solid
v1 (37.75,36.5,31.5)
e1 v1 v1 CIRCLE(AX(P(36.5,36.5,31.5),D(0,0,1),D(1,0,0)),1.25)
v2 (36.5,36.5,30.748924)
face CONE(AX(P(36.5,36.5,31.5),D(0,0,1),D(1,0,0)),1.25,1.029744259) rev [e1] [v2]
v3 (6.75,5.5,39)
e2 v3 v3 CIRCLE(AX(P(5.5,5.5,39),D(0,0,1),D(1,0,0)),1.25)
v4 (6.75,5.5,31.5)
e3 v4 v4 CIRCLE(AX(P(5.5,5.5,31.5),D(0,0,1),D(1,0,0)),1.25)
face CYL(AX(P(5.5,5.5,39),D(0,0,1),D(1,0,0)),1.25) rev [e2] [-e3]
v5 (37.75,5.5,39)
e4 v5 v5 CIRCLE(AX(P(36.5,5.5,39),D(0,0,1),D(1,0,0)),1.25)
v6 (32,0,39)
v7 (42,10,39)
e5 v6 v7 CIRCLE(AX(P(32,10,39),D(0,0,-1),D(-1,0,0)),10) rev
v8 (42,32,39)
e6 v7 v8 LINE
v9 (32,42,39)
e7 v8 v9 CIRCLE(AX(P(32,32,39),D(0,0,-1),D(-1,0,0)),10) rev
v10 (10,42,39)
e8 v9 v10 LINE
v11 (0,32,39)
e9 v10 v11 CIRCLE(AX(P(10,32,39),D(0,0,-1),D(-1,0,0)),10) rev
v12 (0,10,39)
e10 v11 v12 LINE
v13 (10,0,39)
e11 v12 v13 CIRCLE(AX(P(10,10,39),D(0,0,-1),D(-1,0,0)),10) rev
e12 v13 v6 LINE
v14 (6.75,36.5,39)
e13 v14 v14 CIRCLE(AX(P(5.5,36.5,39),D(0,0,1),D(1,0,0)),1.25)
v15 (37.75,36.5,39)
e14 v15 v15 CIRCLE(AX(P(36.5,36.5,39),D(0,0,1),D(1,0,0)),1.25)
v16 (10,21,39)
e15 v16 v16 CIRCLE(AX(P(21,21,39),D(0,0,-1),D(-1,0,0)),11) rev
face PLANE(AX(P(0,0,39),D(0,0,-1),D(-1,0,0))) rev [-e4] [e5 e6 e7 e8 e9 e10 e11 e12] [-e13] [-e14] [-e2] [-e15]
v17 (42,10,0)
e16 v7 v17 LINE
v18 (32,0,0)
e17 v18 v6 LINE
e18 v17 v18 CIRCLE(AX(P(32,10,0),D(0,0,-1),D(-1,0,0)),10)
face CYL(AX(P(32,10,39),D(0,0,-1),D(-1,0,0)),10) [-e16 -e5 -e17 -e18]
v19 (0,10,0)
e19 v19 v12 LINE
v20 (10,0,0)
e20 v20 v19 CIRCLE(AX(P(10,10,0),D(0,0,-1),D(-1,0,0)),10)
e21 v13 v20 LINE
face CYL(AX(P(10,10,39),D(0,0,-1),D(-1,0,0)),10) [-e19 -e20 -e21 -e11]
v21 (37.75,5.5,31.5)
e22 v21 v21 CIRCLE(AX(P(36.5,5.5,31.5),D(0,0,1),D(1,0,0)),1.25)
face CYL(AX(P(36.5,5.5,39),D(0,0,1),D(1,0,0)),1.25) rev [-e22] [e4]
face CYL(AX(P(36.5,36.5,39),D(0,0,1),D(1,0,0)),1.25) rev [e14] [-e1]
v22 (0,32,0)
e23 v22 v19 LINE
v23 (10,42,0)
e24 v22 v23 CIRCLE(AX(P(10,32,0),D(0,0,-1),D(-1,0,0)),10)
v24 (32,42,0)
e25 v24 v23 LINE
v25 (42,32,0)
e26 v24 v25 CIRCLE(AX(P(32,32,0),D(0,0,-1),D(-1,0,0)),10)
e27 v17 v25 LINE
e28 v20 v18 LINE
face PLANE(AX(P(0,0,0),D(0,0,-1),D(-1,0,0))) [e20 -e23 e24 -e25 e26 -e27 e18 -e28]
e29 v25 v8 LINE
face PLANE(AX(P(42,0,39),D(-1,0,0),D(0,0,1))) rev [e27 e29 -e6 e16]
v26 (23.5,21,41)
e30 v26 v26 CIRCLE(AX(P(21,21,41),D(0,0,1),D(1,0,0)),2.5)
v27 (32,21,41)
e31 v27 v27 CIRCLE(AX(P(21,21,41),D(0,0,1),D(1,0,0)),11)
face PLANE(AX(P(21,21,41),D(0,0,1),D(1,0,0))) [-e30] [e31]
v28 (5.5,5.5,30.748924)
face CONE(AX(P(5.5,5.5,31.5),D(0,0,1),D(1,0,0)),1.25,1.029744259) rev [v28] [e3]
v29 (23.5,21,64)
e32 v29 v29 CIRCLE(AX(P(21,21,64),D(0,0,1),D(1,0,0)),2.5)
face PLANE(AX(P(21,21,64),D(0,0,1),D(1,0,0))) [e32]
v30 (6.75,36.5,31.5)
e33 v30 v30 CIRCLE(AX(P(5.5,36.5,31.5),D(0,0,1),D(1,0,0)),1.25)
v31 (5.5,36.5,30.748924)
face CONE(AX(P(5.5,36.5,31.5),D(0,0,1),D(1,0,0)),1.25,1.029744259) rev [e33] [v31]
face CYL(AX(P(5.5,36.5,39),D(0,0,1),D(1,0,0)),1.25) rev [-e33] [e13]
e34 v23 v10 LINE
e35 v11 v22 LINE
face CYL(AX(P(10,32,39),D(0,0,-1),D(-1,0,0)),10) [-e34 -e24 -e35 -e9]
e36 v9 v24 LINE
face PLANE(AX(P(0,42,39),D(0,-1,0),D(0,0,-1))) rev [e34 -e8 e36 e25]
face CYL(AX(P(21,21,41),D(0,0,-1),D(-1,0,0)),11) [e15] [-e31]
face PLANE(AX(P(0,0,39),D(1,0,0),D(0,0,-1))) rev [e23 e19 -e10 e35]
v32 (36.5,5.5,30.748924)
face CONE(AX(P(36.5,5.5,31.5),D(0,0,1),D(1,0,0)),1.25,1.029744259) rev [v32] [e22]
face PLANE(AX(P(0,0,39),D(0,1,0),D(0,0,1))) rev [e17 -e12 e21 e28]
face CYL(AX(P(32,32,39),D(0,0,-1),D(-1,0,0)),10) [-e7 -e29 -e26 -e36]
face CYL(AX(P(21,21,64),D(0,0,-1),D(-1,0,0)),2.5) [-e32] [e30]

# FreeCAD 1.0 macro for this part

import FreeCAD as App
import Part
import Sketcher

V = App.Vector


def edges_at(feature, points):
    """Names of the edges that pass closest to the given points."""
    edges = feature.Shape.Edges
    near = lambda p: min(range(len(edges)), key=lambda i: edges[i].distToShape(Part.Vertex(*p))[0])
    return sorted({f"Edge{near(p) + 1}" for p in points})


def add_polygon(sketch, points):
    """Adds a closed chain of lines whose ends are joined by coincident constraints."""
    first, n = sketch.GeometryCount, len(points)
    for a, b in zip(points, points[1:] + points[:1]):
        sketch.addGeometry(Part.LineSegment(App.Vector(*a, 0), App.Vector(*b, 0)), False)
    for i in range(n):
        sketch.addConstraint(Sketcher.Constraint("Coincident", first + i, 2, first + (i + 1) % n, 1))

doc = App.newDocument("Part")
params = doc.addObject("Spreadsheet::Sheet", "Params")
for row, (alias, value) in enumerate([
    ("sketch1_width", "42 mm"),
    ("pad1_length", "39 mm"),
    ("fillet_radius", "10 mm"),
    ("sketch2_diameter", "2.5 mm"),
    ("hole_diameter", "2.5 mm"),
    ("hole_depth", "7.5 mm"),
    ("sketch3_diameter", "22 mm"),
    ("pad2_length", "2 mm"),
    ("sketch4_diameter", "5 mm"),
    ("pad3_length", "23 mm"),
], start=1):
    params.set(f"A{row}", alias)
    params.set(f"B{row}", "=" + value)
    params.setAlias(f"B{row}", alias)

body = doc.addObject("PartDesign::Body", "Body")

# Sketch on XY plane
sketch1 = doc.addObject("Sketcher::SketchObject", "Sketch")
body.addObject(sketch1)
sketch1.AttachmentSupport = (doc.XY_Plane, [""])
sketch1.MapMode = "FlatFace"
add_polygon(sketch1, [(0, 42), (0, 0), (42, 0), (42, 42)])  # lines 0-3
sketch1.addConstraint(Sketcher.Constraint("Vertical", 0))
sketch1.addConstraint(Sketcher.Constraint("Horizontal", 1))
sketch1.addConstraint(Sketcher.Constraint("Vertical", 2))
sketch1.addConstraint(Sketcher.Constraint("Horizontal", 3))
sketch1.addConstraint(Sketcher.Constraint("Coincident", 0, 2, -1, 1))
sketch1.addConstraint(Sketcher.Constraint("Equal", 3, 0))
sketch1.addConstraint(Sketcher.Constraint("DistanceX", 1, 1, 1, 2, 42.0))
sketch1.setExpression("Constraints[10]", "Params.sketch1_width")
pad1 = doc.addObject("PartDesign::Pad", "Pad")
body.addObject(pad1)
pad1.Profile = sketch1
pad1.setExpression("Length", "Params.pad1_length")
doc.recompute()

fillet = doc.addObject("PartDesign::Fillet", "Fillet")
body.addObject(fillet)
fillet.Base = (pad1, edges_at(pad1, [
    (0, 42, 19.5),
    (42, 42, 19.5),
    (42, 0, 19.5),
    (0, 0, 19.5),
]))
fillet.setExpression("Radius", "Params.fillet_radius")

# Sketch on XY plane
sketch2 = doc.addObject("Sketcher::SketchObject", "Sketch001")
body.addObject(sketch2)
sketch2.AttachmentSupport = (doc.XY_Plane, [""])
sketch2.MapMode = "FlatFace"
sketch2.AttachmentOffset = App.Placement(V(0, 0, 39), App.Rotation())
sketch2.addGeometry(Part.Circle(V(5.5, 36.5, 0), V(0, 0, 1), 1.2), False)
sketch2.addGeometry(Part.Circle(V(36.5, 36.5, 0), V(0, 0, 1), 1.2), False)
sketch2.addGeometry(Part.Circle(V(36.5, 5.5, 0), V(0, 0, 1), 1.2), False)
sketch2.addGeometry(Part.Circle(V(5.5, 5.5, 0), V(0, 0, 1), 1.2), False)
sketch2.addConstraint(Sketcher.Constraint("Equal", 0, 1))
sketch2.addConstraint(Sketcher.Constraint("Equal", 1, 2))
sketch2.addConstraint(Sketcher.Constraint("Equal", 2, 3))
sketch2.addConstraint(Sketcher.Constraint("Horizontal", 0, 3, 1, 3))
sketch2.addConstraint(Sketcher.Constraint("Horizontal", 2, 3, 3, 3))
sketch2.addConstraint(Sketcher.Constraint("Vertical", 1, 3, 2, 3))
sketch2.addConstraint(Sketcher.Constraint("Vertical", 0, 3, 3, 3))
sketch2.addConstraint(Sketcher.Constraint("Diameter", 0, 2.5))
sketch2.addConstraint(Sketcher.Constraint("DistanceX", 0, 3, 1, 3, 31.0))
sketch2.addConstraint(Sketcher.Constraint("DistanceY", 2, 3, 1, 3, 31.0))
sketch2.addConstraint(Sketcher.Constraint("DistanceX", -1, 1, 0, 3, 5.5))
sketch2.addConstraint(Sketcher.Constraint("DistanceY", -1, 1, 0, 3, 36.5))
sketch2.setExpression("Constraints[7]", "Params.sketch2_diameter")
doc.recompute()
hole = doc.addObject("PartDesign::Hole", "Hole")
body.addObject(hole)
hole.Profile = sketch2
hole.ThreadType = "None"
hole.setExpression("Diameter", "Params.hole_diameter")
hole.DepthType = "Dimension"
hole.setExpression("Depth", "Params.hole_depth")
hole.DrillPoint = "Angled"
hole.DrillPointAngle = 118

# Sketch on XY plane
sketch3 = doc.addObject("Sketcher::SketchObject", "Sketch002")
body.addObject(sketch3)
sketch3.AttachmentSupport = (doc.XY_Plane, [""])
sketch3.MapMode = "FlatFace"
sketch3.AttachmentOffset = App.Placement(V(0, 0, 39), App.Rotation())
sketch3.addGeometry(Part.Circle(V(21, 21, 0), V(0, 0, 1), 11), False)
sketch3.addConstraint(Sketcher.Constraint("Diameter", 0, 22.0))
sketch3.addConstraint(Sketcher.Constraint("DistanceX", -1, 1, 0, 3, 21.0))
sketch3.addConstraint(Sketcher.Constraint("DistanceY", -1, 1, 0, 3, 21.0))
sketch3.setExpression("Constraints[0]", "Params.sketch3_diameter")
pad2 = doc.addObject("PartDesign::Pad", "Pad001")
body.addObject(pad2)
pad2.Profile = sketch3
pad2.setExpression("Length", "Params.pad2_length")

# Sketch on XY plane
sketch4 = doc.addObject("Sketcher::SketchObject", "Sketch003")
body.addObject(sketch4)
sketch4.AttachmentSupport = (doc.XY_Plane, [""])
sketch4.MapMode = "FlatFace"
sketch4.AttachmentOffset = App.Placement(V(0, 0, 41), App.Rotation())
sketch4.addGeometry(Part.Circle(V(21, 21, 0), V(0, 0, 1), 2.5), False)
sketch4.addConstraint(Sketcher.Constraint("Diameter", 0, 5.0))
sketch4.addConstraint(Sketcher.Constraint("DistanceX", -1, 1, 0, 3, 21.0))
sketch4.addConstraint(Sketcher.Constraint("DistanceY", -1, 1, 0, 3, 21.0))
sketch4.setExpression("Constraints[0]", "Params.sketch4_diameter")
pad3 = doc.addObject("PartDesign::Pad", "Pad002")
body.addObject(pad3)
pad3.Profile = sketch4
pad3.setExpression("Length", "Params.pad3_length")

doc.recompute()
